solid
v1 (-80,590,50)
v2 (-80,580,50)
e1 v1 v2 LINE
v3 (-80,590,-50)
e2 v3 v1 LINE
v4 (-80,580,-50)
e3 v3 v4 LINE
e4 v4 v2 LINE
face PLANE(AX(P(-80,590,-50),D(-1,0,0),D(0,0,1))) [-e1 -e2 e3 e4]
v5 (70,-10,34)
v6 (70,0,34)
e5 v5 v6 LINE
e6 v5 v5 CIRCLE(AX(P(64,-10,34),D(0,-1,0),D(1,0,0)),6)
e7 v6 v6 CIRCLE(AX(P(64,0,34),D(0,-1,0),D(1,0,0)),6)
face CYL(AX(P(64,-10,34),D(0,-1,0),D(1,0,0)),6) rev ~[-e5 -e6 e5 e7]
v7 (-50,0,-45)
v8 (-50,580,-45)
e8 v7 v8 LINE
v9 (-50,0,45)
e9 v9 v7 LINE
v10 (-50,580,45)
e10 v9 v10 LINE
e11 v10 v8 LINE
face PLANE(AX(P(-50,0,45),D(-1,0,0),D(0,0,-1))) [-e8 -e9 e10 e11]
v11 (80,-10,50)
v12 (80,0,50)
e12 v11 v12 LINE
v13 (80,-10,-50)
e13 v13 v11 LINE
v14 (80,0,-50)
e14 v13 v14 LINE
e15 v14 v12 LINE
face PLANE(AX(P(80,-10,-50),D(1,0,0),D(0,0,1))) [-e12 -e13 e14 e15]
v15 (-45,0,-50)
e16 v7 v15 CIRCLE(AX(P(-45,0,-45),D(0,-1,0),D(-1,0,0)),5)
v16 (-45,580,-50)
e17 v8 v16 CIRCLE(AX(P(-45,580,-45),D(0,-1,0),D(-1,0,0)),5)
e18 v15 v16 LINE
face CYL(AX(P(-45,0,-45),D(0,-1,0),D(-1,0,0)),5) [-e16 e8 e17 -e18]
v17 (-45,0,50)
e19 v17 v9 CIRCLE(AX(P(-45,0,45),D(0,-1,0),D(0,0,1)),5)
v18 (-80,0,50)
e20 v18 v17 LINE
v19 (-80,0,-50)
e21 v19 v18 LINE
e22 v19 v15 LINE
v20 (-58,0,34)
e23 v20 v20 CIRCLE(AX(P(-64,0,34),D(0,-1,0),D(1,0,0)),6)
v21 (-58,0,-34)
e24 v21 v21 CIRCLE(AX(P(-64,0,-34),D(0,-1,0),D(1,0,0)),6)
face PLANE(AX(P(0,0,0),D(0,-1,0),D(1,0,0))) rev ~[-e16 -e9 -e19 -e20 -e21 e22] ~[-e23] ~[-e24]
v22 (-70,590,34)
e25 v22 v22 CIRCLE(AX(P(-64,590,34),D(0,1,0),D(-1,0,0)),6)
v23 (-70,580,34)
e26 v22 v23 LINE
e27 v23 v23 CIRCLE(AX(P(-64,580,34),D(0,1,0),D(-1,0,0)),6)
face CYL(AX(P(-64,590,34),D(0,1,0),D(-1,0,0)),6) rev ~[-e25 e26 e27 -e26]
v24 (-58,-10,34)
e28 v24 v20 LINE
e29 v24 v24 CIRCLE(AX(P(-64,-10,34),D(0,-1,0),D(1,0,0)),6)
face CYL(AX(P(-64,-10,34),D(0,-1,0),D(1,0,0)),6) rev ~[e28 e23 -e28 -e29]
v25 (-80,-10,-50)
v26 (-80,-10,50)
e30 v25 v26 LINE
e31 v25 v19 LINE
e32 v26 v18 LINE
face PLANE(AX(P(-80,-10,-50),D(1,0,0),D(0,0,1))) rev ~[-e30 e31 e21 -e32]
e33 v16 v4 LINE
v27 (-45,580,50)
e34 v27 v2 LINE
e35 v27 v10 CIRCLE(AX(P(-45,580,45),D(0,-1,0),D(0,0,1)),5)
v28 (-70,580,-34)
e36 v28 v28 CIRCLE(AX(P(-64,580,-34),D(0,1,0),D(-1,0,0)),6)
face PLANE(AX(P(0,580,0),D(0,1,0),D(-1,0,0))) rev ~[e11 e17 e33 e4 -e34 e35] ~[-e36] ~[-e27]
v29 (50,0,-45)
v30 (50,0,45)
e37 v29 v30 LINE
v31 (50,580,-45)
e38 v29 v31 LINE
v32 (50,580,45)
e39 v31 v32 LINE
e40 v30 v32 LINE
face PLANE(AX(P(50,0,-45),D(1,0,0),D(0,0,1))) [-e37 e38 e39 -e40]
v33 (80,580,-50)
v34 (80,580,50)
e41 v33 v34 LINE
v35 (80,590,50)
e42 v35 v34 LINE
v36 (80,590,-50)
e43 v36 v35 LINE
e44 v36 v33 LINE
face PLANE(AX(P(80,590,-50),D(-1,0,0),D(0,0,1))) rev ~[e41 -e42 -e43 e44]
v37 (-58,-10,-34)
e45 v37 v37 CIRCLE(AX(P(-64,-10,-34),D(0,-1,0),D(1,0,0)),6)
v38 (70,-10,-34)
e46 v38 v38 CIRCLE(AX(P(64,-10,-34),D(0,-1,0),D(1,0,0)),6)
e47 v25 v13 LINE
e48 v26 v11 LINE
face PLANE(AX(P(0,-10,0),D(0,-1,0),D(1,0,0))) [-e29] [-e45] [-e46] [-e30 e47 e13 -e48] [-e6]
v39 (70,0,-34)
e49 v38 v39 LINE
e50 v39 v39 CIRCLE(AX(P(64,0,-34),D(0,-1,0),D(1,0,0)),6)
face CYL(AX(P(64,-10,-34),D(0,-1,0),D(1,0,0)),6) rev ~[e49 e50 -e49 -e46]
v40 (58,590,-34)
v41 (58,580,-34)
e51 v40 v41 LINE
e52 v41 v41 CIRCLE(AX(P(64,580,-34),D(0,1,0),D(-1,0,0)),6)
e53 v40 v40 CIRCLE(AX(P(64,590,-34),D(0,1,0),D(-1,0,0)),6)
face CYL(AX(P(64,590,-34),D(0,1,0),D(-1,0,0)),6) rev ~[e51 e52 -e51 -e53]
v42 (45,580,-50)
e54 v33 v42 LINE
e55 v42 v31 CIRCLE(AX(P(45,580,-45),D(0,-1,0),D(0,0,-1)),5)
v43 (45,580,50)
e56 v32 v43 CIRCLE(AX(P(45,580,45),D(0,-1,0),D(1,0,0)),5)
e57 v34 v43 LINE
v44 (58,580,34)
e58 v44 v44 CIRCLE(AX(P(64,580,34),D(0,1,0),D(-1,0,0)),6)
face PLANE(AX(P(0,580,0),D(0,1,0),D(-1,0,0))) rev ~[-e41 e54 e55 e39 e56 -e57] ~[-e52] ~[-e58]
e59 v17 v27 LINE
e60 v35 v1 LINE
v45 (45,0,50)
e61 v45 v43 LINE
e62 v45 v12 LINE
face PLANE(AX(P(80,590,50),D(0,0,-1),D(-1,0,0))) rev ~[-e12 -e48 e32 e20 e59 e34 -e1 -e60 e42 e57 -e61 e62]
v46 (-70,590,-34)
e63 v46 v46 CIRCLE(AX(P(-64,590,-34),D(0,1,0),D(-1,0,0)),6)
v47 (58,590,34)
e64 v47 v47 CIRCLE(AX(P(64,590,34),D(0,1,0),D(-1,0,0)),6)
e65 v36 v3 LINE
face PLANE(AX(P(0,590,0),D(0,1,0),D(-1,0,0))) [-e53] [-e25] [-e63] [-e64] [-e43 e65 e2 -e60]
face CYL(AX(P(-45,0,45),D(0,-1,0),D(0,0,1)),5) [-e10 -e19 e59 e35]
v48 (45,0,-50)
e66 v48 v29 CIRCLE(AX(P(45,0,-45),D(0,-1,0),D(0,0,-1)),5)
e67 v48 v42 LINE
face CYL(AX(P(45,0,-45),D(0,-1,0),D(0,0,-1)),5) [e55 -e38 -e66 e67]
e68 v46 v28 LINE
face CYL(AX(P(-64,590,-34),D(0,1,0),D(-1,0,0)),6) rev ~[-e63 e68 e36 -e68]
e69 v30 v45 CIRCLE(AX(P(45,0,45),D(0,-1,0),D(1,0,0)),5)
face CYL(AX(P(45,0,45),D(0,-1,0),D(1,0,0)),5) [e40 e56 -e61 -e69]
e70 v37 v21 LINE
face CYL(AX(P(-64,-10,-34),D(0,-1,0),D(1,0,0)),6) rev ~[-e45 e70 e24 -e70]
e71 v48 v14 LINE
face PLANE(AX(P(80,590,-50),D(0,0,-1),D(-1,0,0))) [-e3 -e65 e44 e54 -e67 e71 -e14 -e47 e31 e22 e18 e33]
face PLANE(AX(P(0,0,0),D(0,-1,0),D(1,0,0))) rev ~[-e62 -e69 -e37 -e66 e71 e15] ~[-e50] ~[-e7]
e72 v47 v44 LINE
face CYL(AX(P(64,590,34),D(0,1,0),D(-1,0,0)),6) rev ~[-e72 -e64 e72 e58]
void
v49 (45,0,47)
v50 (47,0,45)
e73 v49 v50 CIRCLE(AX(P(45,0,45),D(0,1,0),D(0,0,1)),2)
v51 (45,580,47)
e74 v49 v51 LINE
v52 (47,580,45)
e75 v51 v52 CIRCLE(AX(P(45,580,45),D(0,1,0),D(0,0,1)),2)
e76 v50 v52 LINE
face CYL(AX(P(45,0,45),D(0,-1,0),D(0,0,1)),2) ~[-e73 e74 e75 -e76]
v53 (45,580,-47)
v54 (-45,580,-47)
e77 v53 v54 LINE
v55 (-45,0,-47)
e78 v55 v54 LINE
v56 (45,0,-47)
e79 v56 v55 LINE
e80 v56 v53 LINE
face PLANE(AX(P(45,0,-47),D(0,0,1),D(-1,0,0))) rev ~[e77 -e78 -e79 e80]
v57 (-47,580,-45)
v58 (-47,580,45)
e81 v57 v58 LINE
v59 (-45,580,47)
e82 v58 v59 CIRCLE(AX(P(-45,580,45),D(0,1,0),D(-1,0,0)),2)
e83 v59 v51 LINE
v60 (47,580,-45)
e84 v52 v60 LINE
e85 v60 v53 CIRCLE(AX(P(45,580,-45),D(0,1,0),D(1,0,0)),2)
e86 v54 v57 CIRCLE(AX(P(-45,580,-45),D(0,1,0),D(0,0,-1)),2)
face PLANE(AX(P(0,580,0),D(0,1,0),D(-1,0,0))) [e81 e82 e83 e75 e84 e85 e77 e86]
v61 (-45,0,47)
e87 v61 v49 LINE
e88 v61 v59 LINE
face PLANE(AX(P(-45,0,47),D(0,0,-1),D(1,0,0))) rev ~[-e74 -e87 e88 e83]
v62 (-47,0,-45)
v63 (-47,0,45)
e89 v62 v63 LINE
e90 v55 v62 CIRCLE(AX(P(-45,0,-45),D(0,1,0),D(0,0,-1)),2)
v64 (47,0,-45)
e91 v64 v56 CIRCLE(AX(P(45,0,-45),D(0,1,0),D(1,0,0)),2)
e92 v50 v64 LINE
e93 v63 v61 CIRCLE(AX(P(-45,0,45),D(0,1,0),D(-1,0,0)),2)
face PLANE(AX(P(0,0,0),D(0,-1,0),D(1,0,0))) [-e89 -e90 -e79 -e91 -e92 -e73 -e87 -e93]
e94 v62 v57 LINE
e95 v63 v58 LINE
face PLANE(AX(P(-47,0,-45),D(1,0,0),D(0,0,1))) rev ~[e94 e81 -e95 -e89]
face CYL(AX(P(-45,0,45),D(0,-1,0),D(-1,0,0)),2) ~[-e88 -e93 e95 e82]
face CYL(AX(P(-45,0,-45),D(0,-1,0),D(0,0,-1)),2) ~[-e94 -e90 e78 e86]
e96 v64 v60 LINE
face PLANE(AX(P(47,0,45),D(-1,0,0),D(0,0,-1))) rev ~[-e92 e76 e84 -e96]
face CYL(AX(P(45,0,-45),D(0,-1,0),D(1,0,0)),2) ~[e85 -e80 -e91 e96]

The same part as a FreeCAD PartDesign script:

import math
import FreeCAD as App
import Part
import Sketcher
Q = App.Units.Quantity


def add_polygon(sketch, points):
    """Adds a closed chain of lines whose ends are joined by coincident constraints."""
    first, n = sketch.GeometryCount, len(points)
    for a, b in zip(points, points[1:] + points[:1]):
        sketch.addGeometry(Part.LineSegment(App.Vector(*a, 0), App.Vector(*b, 0)), False)
    for i in range(n):
        sketch.addConstraint(Sketcher.Constraint("Coincident", first + i, 2, first + (i + 1) % n, 1))

doc = App.newDocument("Part")
body = doc.addObject("PartDesign::Body", "Body")

# Sketch on XZ plane
sketch1 = body.newObject("Sketcher::SketchObject", "Sketch")
sketch1.AttachmentSupport = (doc.getObject("XZ_Plane"), [""])
sketch1.MapMode = "FlatFace"
sketch1.addGeometry([
    Part.ArcOfCircle(Part.Circle(App.Vector(45, 45, 0), App.Vector(0, 0, 1), 5), math.radians(0), math.radians(90)),  # 0
    Part.LineSegment(App.Vector(45, 50, 0), App.Vector(-45, 50, 0)),  # 1
    Part.ArcOfCircle(Part.Circle(App.Vector(-45, 45, 0), App.Vector(0, 0, 1), 5), math.radians(90), math.radians(180)),  # 2
    Part.LineSegment(App.Vector(-50, 45, 0), App.Vector(-50, -45, 0)),  # 3
    Part.ArcOfCircle(Part.Circle(App.Vector(-45, -45, 0), App.Vector(0, 0, 1), 5), math.radians(180), math.radians(270)),  # 4
    Part.LineSegment(App.Vector(-45, -50, 0), App.Vector(45, -50, 0)),  # 5
    Part.ArcOfCircle(Part.Circle(App.Vector(45, -45, 0), App.Vector(0, 0, 1), 5), math.radians(-90), math.radians(0)),  # 6
    Part.LineSegment(App.Vector(50, -45, 0), App.Vector(50, 45, 0)),  # 7
    Part.LineSegment(App.Vector(-47, -45, 0), App.Vector(-47, 45, 0)),  # 8
    Part.ArcOfCircle(Part.Circle(App.Vector(-45, 45, 0), App.Vector(0, 0, 1), 2), math.radians(90), math.radians(180)),  # 9
    Part.LineSegment(App.Vector(-45, 47, 0), App.Vector(45, 47, 0)),  # 10
    Part.ArcOfCircle(Part.Circle(App.Vector(45, 45, 0), App.Vector(0, 0, 1), 2), math.radians(0), math.radians(90)),  # 11
    Part.LineSegment(App.Vector(47, 45, 0), App.Vector(47, -45, 0)),  # 12
    Part.ArcOfCircle(Part.Circle(App.Vector(45, -45, 0), App.Vector(0, 0, 1), 2), math.radians(-90), math.radians(0)),  # 13
    Part.LineSegment(App.Vector(45, -47, 0), App.Vector(-45, -47, 0)),  # 14
    Part.ArcOfCircle(Part.Circle(App.Vector(-45, -45, 0), App.Vector(0, 0, 1), 2), math.radians(180), math.radians(270)),  # 15
], False)
sketch1.addConstraint([
    Sketcher.Constraint("Tangent", 0, 2, 1, 1),
    Sketcher.Constraint("Tangent", 1, 2, 2, 1),
    Sketcher.Constraint("Tangent", 2, 2, 3, 1),
    Sketcher.Constraint("Tangent", 3, 2, 4, 1),
    Sketcher.Constraint("Tangent", 4, 2, 5, 1),
    Sketcher.Constraint("Tangent", 5, 2, 6, 1),
    Sketcher.Constraint("Tangent", 6, 2, 7, 1),
    Sketcher.Constraint("Tangent", 7, 2, 0, 1),
    Sketcher.Constraint("Tangent", 8, 2, 9, 2),
    Sketcher.Constraint("Tangent", 9, 1, 10, 1),
    Sketcher.Constraint("Tangent", 10, 2, 11, 2),
    Sketcher.Constraint("Tangent", 11, 1, 12, 1),
    Sketcher.Constraint("Tangent", 12, 2, 13, 2),
    Sketcher.Constraint("Tangent", 13, 1, 14, 1),
    Sketcher.Constraint("Tangent", 14, 2, 15, 2),
    Sketcher.Constraint("Tangent", 15, 1, 8, 1),
    Sketcher.Constraint("Horizontal", 1),
    Sketcher.Constraint("Vertical", 3),
    Sketcher.Constraint("Horizontal", 5),
    Sketcher.Constraint("Vertical", 7),
    Sketcher.Constraint("Vertical", 8),
    Sketcher.Constraint("Horizontal", 10),
    Sketcher.Constraint("Vertical", 12),
    Sketcher.Constraint("Horizontal", 14),
    Sketcher.Constraint("Coincident", 9, 3, 2, 3),
    Sketcher.Constraint("Coincident", 11, 3, 0, 3),
    Sketcher.Constraint("Coincident", 13, 3, 6, 3),
    Sketcher.Constraint("Equal", 0, 2),
    Sketcher.Constraint("Equal", 2, 4),
    Sketcher.Constraint("Equal", 4, 6),
    Sketcher.Constraint("Equal", 13, 15),
    Sketcher.Constraint("Symmetric", 0, 3, 4, 3, -1, 1),
    Sketcher.Constraint("Equal", 14, 3),
    Sketcher.Constraint("Radius", 0, Q("5 mm")),
    Sketcher.Constraint("Radius", 9, Q("2 mm")),
    Sketcher.Constraint("DistanceX", 1, 2, 1, 1, Q("90 mm")),
])
pad1 = body.newObject("PartDesign::Pad", "Pad")
pad1.Profile = sketch1
pad1.Length = 580
pad1.Reversed = True

# Sketch on XZ plane
sketch2 = body.newObject("Sketcher::SketchObject", "Sketch001")
sketch2.AttachmentSupport = (doc.getObject("XZ_Plane"), [""])
sketch2.MapMode = "FlatFace"
sketch2.AttachmentOffset = App.Placement(App.Vector(0, 0, 10), App.Rotation())
add_polygon(sketch2, [(-80, 50), (-80, -50), (80, -50), (80, 50)])  # lines 0-3
sketch2.addGeometry(Part.Circle(App.Vector(-64, -34, 0), App.Vector(0, 0, 1), 6), False)  # 4
sketch2.addGeometry(Part.Circle(App.Vector(64, -34, 0), App.Vector(0, 0, 1), 6), False)  # 5
sketch2.addGeometry(Part.Circle(App.Vector(-64, 34, 0), App.Vector(0, 0, 1), 6), False)  # 6
sketch2.addGeometry(Part.Circle(App.Vector(64, 34, 0), App.Vector(0, 0, 1), 6), False)  # 7
sketch2.addConstraint([
    Sketcher.Constraint("Vertical", 0),
    Sketcher.Constraint("Horizontal", 1),
    Sketcher.Constraint("Vertical", 2),
    Sketcher.Constraint("Horizontal", 3),
    Sketcher.Constraint("Equal", 4, 5),
    Sketcher.Constraint("Equal", 5, 6),
    Sketcher.Constraint("Equal", 6, 7),
    Sketcher.Constraint("Symmetric", 5, 3, 6, 3, -1, 1),
    Sketcher.Constraint("Symmetric", 4, 3, 7, 3, -1, 1),
    Sketcher.Constraint("Symmetric", 0, 2, 2, 2, -1, 1),
    Sketcher.Constraint("Symmetric", 4, 3, 5, 3, -2),
    Sketcher.Constraint("Diameter", 4, Q("12 mm")),
    Sketcher.Constraint("DistanceX", 1, 1, 1, 2, Q("160 mm")),
    Sketcher.Constraint("DistanceY", 0, 2, 0, 1, Q("100 mm")),
    Sketcher.Constraint("DistanceX", 4, 3, -1, 1, Q("64 mm")),
    Sketcher.Constraint("DistanceY", 4, 3, -1, 1, Q("34 mm")),
])
pad2 = body.newObject("PartDesign::Pad", "Pad001")
pad2.Profile = sketch2
pad2.Length = 10
pad2.Reversed = True

# Sketch on XZ plane
sketch3 = body.newObject("Sketcher::SketchObject", "Sketch002")
sketch3.AttachmentSupport = (doc.getObject("XZ_Plane"), [""])
sketch3.MapMode = "FlatFace"
sketch3.AttachmentOffset = App.Placement(App.Vector(0, 0, -590), App.Rotation())
add_polygon(sketch3, [(80, 50), (80, -50), (-80, -50), (-80, 50)])  # lines 0-3
sketch3.addGeometry(Part.Circle(App.Vector(64, -34, 0), App.Vector(0, 0, 1), 6), False)  # 4
sketch3.addGeometry(Part.Circle(App.Vector(-64, -34, 0), App.Vector(0, 0, 1), 6), False)  # 5
sketch3.addGeometry(Part.Circle(App.Vector(64, 34, 0), App.Vector(0, 0, 1), 6), False)  # 6
sketch3.addGeometry(Part.Circle(App.Vector(-64, 34, 0), App.Vector(0, 0, 1), 6), False)  # 7
sketch3.addConstraint([
    Sketcher.Constraint("Vertical", 0),
    Sketcher.Constraint("Horizontal", 1),
    Sketcher.Constraint("Vertical", 2),
    Sketcher.Constraint("Horizontal", 3),
    Sketcher.Constraint("Equal", 4, 5),
    Sketcher.Constraint("Equal", 5, 6),
    Sketcher.Constraint("Equal", 6, 7),
    Sketcher.Constraint("Symmetric", 5, 3, 6, 3, -1, 1),
    Sketcher.Constraint("Symmetric", 4, 3, 7, 3, -1, 1),
    Sketcher.Constraint("Symmetric", 0, 2, 2, 2, -1, 1),
    Sketcher.Constraint("Symmetric", 4, 3, 5, 3, -2),
    Sketcher.Constraint("Diameter", 4, Q("12 mm")),
    Sketcher.Constraint("DistanceX", 1, 2, 1, 1, Q("160 mm")),
    Sketcher.Constraint("DistanceY", 0, 2, 0, 1, Q("100 mm")),
    Sketcher.Constraint("DistanceX", -1, 1, 4, 3, Q("64 mm")),
    Sketcher.Constraint("DistanceY", 4, 3, -1, 1, Q("34 mm")),
])
pad3 = body.newObject("PartDesign::Pad", "Pad002")
pad3.Profile = sketch3
pad3.Length = 10

doc.recompute()
